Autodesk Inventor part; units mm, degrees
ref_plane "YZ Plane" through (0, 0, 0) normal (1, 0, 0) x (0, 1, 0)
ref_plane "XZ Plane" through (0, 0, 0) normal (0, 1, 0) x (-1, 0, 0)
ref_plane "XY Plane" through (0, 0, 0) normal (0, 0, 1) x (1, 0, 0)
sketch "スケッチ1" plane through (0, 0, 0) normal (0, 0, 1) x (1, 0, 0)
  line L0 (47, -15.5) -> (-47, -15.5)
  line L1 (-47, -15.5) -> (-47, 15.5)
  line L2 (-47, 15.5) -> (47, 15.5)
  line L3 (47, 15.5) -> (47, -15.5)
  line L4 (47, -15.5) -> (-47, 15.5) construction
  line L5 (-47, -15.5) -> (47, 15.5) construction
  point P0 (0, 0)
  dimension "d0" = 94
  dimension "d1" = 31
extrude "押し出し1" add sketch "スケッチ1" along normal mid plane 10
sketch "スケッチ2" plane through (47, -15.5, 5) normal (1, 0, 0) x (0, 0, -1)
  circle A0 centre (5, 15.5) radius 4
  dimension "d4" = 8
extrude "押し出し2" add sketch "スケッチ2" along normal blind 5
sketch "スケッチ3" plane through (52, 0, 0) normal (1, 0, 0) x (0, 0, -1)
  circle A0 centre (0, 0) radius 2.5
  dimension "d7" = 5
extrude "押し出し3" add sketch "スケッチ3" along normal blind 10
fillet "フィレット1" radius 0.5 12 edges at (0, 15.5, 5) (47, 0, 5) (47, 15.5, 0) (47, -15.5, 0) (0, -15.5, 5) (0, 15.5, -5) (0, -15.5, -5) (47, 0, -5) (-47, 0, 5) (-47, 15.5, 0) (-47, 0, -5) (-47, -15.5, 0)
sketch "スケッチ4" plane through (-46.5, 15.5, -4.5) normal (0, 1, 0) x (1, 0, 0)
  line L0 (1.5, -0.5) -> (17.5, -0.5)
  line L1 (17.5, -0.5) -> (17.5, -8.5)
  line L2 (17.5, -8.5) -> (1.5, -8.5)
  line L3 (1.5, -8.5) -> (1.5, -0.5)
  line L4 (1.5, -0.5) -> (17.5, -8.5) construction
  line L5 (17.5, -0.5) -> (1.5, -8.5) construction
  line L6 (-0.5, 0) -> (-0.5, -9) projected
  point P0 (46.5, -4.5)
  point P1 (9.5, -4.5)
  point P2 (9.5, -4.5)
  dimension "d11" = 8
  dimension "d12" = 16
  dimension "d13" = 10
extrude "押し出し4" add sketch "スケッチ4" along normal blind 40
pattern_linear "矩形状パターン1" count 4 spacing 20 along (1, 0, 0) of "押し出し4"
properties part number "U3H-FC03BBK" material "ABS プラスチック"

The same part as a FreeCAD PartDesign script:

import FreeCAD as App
import Part
import Sketcher

V = App.Vector


def edges_at(feature, points):
    """Names of the edges that pass closest to the given points."""
    edges = feature.Shape.Edges
    near = lambda p: min(range(len(edges)), key=lambda i: edges[i].distToShape(Part.Vertex(*p))[0])
    return sorted({f"Edge{near(p) + 1}" for p in points})


def add_polygon(sketch, points):
    """Adds a closed chain of lines whose ends are joined by coincident constraints."""
    first, n = sketch.GeometryCount, len(points)
    for a, b in zip(points, points[1:] + points[:1]):
        sketch.addGeometry(Part.LineSegment(App.Vector(*a, 0), App.Vector(*b, 0)), False)
    for i in range(n):
        sketch.addConstraint(Sketcher.Constraint("Coincident", first + i, 2, first + (i + 1) % n, 1))

doc = App.newDocument("Part")
body = doc.addObject("PartDesign::Body", "Body")

# Sketch on XY plane
sketch1 = body.newObject("Sketcher::SketchObject", "Sketch")
sketch1.AttachmentSupport = (doc.getObject("XY_Plane"), [""])
sketch1.MapMode = "FlatFace"
add_polygon(sketch1, [(-47, -16), (47, -16), (47, 16), (-47, 16)])  # lines 0-3
sketch1.addConstraint([
    Sketcher.Constraint("Horizontal", 0),
    Sketcher.Constraint("Vertical", 1),
    Sketcher.Constraint("Horizontal", 2),
    Sketcher.Constraint("Vertical", 3),
    Sketcher.Constraint("Symmetric", 0, 2, 2, 2, -1, 1),
    Sketcher.Constraint("DistanceX", 0, 1, 0, 2, 94.0),
    Sketcher.Constraint("DistanceY", 1, 1, 1, 2, 31.0),
])
pad1 = body.newObject("PartDesign::Pad", "Pad")
pad1.Profile = sketch1
pad1.Length = 10
pad1.Midplane = True

# Sketch on YZ plane
sketch2 = body.newObject("Sketcher::SketchObject", "Sketch001")
sketch2.AttachmentSupport = (doc.getObject("YZ_Plane"), [""])
sketch2.MapMode = "FlatFace"
sketch2.AttachmentOffset = App.Placement(V(0, 0, 47), App.Rotation())
sketch2.addGeometry(Part.Circle(V(0, 0, 0), V(0, 0, 1), 4), False)
sketch2.addConstraint([
    Sketcher.Constraint("Coincident", 0, 3, -1, 1),
    Sketcher.Constraint("Diameter", 0, 8.0),
])
pad2 = body.newObject("PartDesign::Pad", "Pad001")
pad2.Profile = sketch2
pad2.Length = 5

# Sketch on YZ plane
sketch3 = body.newObject("Sketcher::SketchObject", "Sketch002")
sketch3.AttachmentSupport = (doc.getObject("YZ_Plane"), [""])
sketch3.MapMode = "FlatFace"
sketch3.AttachmentOffset = App.Placement(V(0, 0, 52), App.Rotation())
sketch3.addGeometry(Part.Circle(V(0, 0, 0), V(0, 0, 1), 2.5), False)
sketch3.addConstraint([
    Sketcher.Constraint("Coincident", 0, 3, -1, 1),
    Sketcher.Constraint("Diameter", 0, 5.0),
])
pad3 = body.newObject("PartDesign::Pad", "Pad002")
pad3.Profile = sketch3
pad3.Length = 10
doc.recompute()

fillet = body.newObject("PartDesign::Fillet", "Fillet")
fillet.Base = (pad3, edges_at(pad3, [
    (0, 15.5, 5),
    (47, 0, 5),
    (47, 15.5, 0),
    (47, -15.5, 0),
    (0, -15.5, 5),
    (0, 15.5, -5),
    (0, -15.5, -5),
    (47, 0, -5),
    (-47, 0, 5),
    (-47, 15.5, 0),
    (-47, 0, -5),
    (-47, -15.5, 0),
]))
fillet.Radius = 0.5

# Sketch on XZ plane
sketch4 = body.newObject("Sketcher::SketchObject", "Sketch003")
sketch4.AttachmentSupport = (doc.getObject("XZ_Plane"), [""])
sketch4.MapMode = "FlatFace"
sketch4.AttachmentOffset = App.Placement(V(0, 0, -15.5), App.Rotation())
add_polygon(sketch4, [(-29, -4), (-45, -4), (-45, 4), (-29, 4)])  # lines 0-3
sketch4.addConstraint([
    Sketcher.Constraint("Horizontal", 0),
    Sketcher.Constraint("Vertical", 1),
    Sketcher.Constraint("Horizontal", 2),
    Sketcher.Constraint("Vertical", 3),
    Sketcher.Constraint("DistanceX", 0, 2, 0, 1, 16.0),
    Sketcher.Constraint("DistanceY", 1, 1, 1, 2, 8.0),
    Sketcher.Constraint("DistanceX", 0, 2, -1, 1, 45.0),
    Sketcher.Constraint("DistanceY", 0, 2, -1, 1, 4.0),
])
pad4 = body.newObject("PartDesign::Pad", "Pad003")
pad4.Profile = sketch4
pad4.Length = 40
pad4.Reversed = True
doc.recompute()

linearpattern = body.newObject("PartDesign::LinearPattern", "LinearPattern")
linearpattern.Originals = [pad4]
linearpattern.Direction = (doc.getObject("X_Axis"), [""])
linearpattern.Mode = "offset"
linearpattern.Offset = 20
linearpattern.Occurrences = 4
body.Tip = linearpattern

doc.recompute()
